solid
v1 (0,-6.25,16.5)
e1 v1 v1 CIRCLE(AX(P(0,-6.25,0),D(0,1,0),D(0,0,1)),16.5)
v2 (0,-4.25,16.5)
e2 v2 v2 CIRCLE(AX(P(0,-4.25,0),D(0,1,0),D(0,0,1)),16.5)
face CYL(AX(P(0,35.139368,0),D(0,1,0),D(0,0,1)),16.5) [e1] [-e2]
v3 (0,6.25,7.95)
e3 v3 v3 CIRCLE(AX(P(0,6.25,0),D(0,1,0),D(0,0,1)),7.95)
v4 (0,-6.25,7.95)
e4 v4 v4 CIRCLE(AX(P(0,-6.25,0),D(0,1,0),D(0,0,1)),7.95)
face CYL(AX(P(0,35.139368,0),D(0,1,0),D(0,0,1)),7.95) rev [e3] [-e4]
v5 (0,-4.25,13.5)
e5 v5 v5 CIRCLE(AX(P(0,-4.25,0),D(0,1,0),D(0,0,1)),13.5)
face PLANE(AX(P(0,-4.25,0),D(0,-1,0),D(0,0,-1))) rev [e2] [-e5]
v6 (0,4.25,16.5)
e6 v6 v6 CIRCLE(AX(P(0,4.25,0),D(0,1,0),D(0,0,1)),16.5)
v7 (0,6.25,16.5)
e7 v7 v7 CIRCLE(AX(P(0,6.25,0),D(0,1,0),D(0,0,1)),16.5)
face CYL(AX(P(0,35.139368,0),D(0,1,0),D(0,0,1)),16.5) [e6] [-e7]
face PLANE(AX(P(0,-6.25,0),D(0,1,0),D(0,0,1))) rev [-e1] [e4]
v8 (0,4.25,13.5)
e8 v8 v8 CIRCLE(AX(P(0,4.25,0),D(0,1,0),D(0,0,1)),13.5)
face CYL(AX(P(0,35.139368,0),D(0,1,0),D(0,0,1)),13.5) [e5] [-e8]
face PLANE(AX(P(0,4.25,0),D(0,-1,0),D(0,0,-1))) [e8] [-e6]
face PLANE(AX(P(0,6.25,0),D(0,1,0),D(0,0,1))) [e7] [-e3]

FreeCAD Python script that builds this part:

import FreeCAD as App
import Part
import Sketcher


def add_polygon(sketch, points):
    """Adds a closed chain of lines whose ends are joined by coincident constraints."""
    first, n = sketch.GeometryCount, len(points)
    for a, b in zip(points, points[1:] + points[:1]):
        sketch.addGeometry(Part.LineSegment(App.Vector(*a, 0), App.Vector(*b, 0)), False)
    for i in range(n):
        sketch.addConstraint(Sketcher.Constraint("Coincident", first + i, 2, first + (i + 1) % n, 1))

doc = App.newDocument("Part")
body = doc.addObject("PartDesign::Body", "Body")

sketch1 = body.newObject("Sketcher::SketchObject", "Sketch")
sketch1.AttachmentSupport = (doc.getObject("XY_Plane"), [""])
sketch1.MapMode = "FlatFace"
add_polygon(sketch1, [(-16.5, -6.2), (-8, -6.2), (-8, 6.2), (-16.5, 6.2), (-16.5, 4.2), (-13.5, 4.2), (-13.5, -4.2), (-16.5, -4.2)])
sketch1.addConstraint([
    Sketcher.Constraint("Horizontal", 0),
    Sketcher.Constraint("Vertical", 1),
    Sketcher.Constraint("Horizontal", 2),
    Sketcher.Constraint("Vertical", 3),
    Sketcher.Constraint("Horizontal", 4),
    Sketcher.Constraint("Vertical", 5),
    Sketcher.Constraint("Horizontal", 6),
    Sketcher.Constraint("Vertical", 7),
    Sketcher.Constraint("Symmetric", 3, 2, 6, 2, -1),
    Sketcher.Constraint("Equal", 3, 7),
    Sketcher.Constraint("DistanceX", 4, 1, 4, 2, 3.0),
    Sketcher.Constraint("DistanceY", 3, 2, 3, 1, 2.0),
    Sketcher.Constraint("DistanceY", 1, 1, 1, 2, 12.5),
    Sketcher.Constraint("DistanceX", 0, 1, 0, 2, 8.55),
    Sketcher.Constraint("DistanceX", 2, 2, -1, 1, 16.5),
])
revolution = body.newObject("PartDesign::Revolution", "Revolution")
revolution.Profile = sketch1
revolution.ReferenceAxis = (sketch1, ["V_Axis"])
revolution.Angle = 360

doc.recompute()
